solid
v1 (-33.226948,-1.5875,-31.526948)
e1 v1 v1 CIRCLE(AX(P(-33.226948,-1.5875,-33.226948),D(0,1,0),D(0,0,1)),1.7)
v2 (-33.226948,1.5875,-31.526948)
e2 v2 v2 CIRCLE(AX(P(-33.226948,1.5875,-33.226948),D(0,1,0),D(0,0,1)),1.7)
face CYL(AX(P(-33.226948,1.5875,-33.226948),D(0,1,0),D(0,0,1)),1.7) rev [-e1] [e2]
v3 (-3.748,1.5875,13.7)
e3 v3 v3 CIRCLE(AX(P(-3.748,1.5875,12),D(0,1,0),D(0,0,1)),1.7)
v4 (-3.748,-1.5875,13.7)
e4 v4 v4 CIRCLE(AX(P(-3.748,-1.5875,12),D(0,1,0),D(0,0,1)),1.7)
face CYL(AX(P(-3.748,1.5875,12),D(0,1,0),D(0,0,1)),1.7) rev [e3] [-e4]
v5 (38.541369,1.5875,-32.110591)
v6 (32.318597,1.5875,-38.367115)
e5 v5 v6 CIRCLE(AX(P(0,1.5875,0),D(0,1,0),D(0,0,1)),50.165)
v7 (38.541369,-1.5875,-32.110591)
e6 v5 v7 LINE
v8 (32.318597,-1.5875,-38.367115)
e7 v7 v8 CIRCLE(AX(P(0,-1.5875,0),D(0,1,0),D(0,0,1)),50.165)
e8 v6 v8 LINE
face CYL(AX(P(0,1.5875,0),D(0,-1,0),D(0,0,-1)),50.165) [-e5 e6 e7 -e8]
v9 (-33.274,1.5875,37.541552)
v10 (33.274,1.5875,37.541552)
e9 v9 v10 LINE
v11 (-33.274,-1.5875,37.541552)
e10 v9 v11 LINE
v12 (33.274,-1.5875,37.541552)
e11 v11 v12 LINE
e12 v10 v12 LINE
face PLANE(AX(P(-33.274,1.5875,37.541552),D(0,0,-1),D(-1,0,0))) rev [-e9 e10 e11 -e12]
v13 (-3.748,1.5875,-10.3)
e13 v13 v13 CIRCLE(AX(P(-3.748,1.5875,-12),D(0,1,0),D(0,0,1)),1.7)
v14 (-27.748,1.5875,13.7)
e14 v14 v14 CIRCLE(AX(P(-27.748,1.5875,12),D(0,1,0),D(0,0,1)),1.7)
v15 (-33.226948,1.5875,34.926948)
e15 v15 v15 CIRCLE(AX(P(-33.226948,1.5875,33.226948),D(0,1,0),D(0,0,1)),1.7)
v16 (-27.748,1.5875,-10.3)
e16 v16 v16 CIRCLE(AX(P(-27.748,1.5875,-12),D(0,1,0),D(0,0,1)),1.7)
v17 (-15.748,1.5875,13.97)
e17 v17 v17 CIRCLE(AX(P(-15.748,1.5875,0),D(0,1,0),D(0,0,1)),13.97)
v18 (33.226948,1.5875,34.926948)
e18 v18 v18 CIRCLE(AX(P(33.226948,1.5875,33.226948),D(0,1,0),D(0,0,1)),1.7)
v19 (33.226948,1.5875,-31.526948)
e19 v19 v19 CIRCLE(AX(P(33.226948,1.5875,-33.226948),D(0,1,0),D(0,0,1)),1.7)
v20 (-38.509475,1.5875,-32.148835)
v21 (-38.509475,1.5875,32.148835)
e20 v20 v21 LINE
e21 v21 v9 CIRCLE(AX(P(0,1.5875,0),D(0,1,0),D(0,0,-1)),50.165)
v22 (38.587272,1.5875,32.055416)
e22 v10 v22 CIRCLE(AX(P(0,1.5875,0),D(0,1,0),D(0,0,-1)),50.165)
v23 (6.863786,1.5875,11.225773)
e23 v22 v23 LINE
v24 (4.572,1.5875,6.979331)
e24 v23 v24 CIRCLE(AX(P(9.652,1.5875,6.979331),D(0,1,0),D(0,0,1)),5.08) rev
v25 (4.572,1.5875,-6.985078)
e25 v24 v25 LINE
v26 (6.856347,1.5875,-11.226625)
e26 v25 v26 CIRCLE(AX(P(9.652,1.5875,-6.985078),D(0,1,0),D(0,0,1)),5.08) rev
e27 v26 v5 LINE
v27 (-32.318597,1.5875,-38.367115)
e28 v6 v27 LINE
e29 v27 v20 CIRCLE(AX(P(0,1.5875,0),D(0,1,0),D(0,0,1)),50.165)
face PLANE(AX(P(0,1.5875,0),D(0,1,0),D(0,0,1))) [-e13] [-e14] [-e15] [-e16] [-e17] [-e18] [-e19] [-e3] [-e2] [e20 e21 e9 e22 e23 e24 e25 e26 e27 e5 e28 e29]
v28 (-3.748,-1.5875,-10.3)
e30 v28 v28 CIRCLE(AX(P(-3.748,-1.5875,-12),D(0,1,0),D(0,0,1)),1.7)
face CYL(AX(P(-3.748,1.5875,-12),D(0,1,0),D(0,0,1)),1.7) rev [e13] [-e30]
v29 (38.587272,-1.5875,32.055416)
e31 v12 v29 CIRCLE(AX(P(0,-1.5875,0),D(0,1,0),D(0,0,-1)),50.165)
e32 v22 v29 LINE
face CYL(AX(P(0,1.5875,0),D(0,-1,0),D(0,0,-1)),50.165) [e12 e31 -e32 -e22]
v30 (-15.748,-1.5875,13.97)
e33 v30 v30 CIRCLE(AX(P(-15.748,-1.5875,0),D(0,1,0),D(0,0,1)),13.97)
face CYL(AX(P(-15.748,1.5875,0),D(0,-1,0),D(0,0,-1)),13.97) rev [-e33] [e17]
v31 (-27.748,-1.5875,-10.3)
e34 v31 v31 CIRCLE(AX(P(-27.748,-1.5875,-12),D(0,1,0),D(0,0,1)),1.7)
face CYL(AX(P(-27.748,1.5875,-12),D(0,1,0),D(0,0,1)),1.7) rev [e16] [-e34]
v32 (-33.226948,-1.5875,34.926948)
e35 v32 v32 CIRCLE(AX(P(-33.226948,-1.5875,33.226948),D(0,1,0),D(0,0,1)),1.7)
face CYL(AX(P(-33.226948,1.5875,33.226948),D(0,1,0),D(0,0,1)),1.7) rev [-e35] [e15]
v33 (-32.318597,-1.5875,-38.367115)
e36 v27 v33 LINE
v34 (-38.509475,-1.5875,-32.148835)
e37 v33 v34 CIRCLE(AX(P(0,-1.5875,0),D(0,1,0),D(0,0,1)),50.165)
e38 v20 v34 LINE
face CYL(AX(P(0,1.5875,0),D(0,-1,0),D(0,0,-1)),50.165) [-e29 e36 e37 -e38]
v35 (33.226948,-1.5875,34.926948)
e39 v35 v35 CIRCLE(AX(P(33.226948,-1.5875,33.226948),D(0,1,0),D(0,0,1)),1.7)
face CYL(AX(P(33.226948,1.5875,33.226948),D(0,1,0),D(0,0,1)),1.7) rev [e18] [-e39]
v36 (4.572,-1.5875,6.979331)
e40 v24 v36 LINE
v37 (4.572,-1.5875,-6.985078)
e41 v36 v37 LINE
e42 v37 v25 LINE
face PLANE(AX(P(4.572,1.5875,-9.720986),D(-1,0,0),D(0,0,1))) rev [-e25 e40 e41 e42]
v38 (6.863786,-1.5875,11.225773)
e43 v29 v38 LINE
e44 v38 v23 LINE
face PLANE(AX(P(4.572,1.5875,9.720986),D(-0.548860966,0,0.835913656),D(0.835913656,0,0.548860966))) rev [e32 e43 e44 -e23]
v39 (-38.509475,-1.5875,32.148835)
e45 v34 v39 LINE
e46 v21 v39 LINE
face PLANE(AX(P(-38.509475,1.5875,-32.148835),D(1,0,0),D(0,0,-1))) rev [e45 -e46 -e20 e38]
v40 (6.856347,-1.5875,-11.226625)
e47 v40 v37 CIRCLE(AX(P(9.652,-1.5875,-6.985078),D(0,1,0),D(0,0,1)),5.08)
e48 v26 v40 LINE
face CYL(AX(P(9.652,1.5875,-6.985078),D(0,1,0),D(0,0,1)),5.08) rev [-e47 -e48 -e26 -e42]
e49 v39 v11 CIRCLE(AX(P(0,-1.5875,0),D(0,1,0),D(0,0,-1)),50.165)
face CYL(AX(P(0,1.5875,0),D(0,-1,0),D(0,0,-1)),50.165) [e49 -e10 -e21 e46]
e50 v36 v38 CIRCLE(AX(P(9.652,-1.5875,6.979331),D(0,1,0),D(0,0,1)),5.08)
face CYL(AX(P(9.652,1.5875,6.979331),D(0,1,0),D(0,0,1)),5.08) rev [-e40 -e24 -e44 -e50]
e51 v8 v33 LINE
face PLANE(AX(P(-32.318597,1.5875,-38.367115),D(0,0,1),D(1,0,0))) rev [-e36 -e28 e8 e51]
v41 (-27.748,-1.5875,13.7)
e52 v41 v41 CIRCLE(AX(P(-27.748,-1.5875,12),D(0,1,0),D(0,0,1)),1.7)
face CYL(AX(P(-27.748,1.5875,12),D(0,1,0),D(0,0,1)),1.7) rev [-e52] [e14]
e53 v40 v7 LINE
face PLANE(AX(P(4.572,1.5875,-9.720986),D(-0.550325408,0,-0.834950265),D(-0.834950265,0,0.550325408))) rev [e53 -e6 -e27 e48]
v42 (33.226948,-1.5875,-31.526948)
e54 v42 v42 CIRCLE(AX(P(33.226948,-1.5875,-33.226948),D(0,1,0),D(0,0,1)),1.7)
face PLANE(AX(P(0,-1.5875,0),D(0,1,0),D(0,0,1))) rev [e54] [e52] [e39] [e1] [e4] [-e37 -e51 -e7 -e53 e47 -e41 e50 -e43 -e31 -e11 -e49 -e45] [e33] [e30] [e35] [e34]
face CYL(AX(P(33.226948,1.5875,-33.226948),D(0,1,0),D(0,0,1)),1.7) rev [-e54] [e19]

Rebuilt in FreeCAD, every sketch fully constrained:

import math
import FreeCAD as App
import Part
import Sketcher

V = App.Vector
Q = App.Units.Quantity


def edges_at(feature, points):
    """Names of the edges that pass closest to the given points."""
    edges = feature.Shape.Edges
    near = lambda p: min(range(len(edges)), key=lambda i: edges[i].distToShape(Part.Vertex(*p))[0])
    return sorted({f"Edge{near(p) + 1}" for p in points})

doc = App.newDocument("Part")
body = doc.addObject("PartDesign::Body", "Body")

sketch1 = body.newObject("Sketcher::SketchObject", "Sketch")
sketch1.AttachmentSupport = (doc.getObject("XZ_Plane"), [""])
sketch1.MapMode = "FlatFace"
sketch1.addGeometry([
    Part.LineSegment(V(-38.509475, -32.148835, 0), V(-38.509475, 32.148835, 0)),
    Part.ArcOfCircle(Part.Circle(V(0, 0, 0), V(0, 0, 1), 50.165), math.radians(131.551359), math.radians(140.143885)),
    Part.LineSegment(V(-33.274, 37.541552, 0), V(33.274, 37.541552, 0)),
    Part.ArcOfCircle(Part.Circle(V(0, 0, 0), V(0, 0, 1), 50.165), math.radians(39.717264), math.radians(48.448641)),
    Part.LineSegment(V(38.587272, 32.055416, 0), V(4.572, 9.720986, 0)),
    Part.LineSegment(V(4.572, 9.720986, 0), V(4.572, -9.720986, 0)),
    Part.LineSegment(V(4.572, -9.720986, 0), V(38.541369, -32.110591, 0)),
    Part.ArcOfCircle(Part.Circle(V(0, 0, 0), V(0, 0, 1), 50.165), math.radians(-49.890838), math.radians(-39.799239)),
    Part.LineSegment(V(32.318597, -38.367115, 0), V(-32.318597, -38.367115, 0)),
    Part.ArcOfCircle(Part.Circle(V(0, 0, 0), V(0, 0, 1), 50.165), math.radians(-140.143885), math.radians(-130.109162)),
    Part.Circle(V(-15.748, 0, 0), V(0, 0, 1), 13.97),
], False)
sketch1.addConstraint([
    Sketcher.Constraint("Coincident", 0, 2, 1, 2),
    Sketcher.Constraint("Coincident", 1, 1, 2, 1),
    Sketcher.Constraint("Coincident", 2, 2, 3, 2),
    Sketcher.Constraint("Coincident", 3, 1, 4, 1),
    Sketcher.Constraint("Coincident", 4, 2, 5, 1),
    Sketcher.Constraint("Coincident", 5, 2, 6, 1),
    Sketcher.Constraint("Coincident", 6, 2, 7, 2),
    Sketcher.Constraint("Coincident", 7, 1, 8, 1),
    Sketcher.Constraint("Coincident", 8, 2, 9, 2),
    Sketcher.Constraint("Coincident", 9, 1, 0, 1),
    Sketcher.Constraint("Vertical", 0),
    Sketcher.Constraint("Horizontal", 2),
    Sketcher.Constraint("Vertical", 5),
    Sketcher.Constraint("Horizontal", 8),
    Sketcher.Constraint("Coincident", 1, 3, -1, 1),
    Sketcher.Constraint("Coincident", 3, 3, -1, 1),
    Sketcher.Constraint("Coincident", 7, 3, -1, 1),
    Sketcher.Constraint("Coincident", 9, 3, -1, 1),
    Sketcher.Constraint("Equal", 1, 3),
    Sketcher.Constraint("Equal", 3, 7),
    Sketcher.Constraint("Equal", 7, 9),
    Sketcher.Constraint("PointOnObject", 10, 3, -1),
    Sketcher.Constraint("Diameter", 10, Q("1.1 in")),
    Sketcher.Constraint("Radius", 1, Q("1.975 in")),
    Sketcher.Constraint("DistanceX", 2, 1, 2, 2, Q("2.62 in")),
    Sketcher.Constraint("DistanceX", 10, 3, 4, 2, Q("0.8 in")),
    Sketcher.Constraint("DistanceX", 10, 3, -1, 1, Q("0.62 in")),
    Sketcher.Constraint("DistanceY", 0, 1, 0, 2, Q("64.297669 mm")),
    Sketcher.Constraint("DistanceY", 5, 2, 5, 1, Q("19.441971 mm")),
    Sketcher.Constraint("DistanceX", 8, 2, 8, 1, Q("64.637195 mm")),
    Sketcher.Constraint("DistanceX", -1, 1, 3, 1, Q("38.587272 mm")),
    Sketcher.Constraint("DistanceX", -1, 1, 6, 2, Q("38.541369 mm")),
    Sketcher.Constraint("DistanceY", 7, 1, 5, 2, Q("28.646129 mm")),
])
pad1 = body.newObject("PartDesign::Pad", "Pad")
pad1.Profile = sketch1
pad1.Length = Q("0.125 in")
pad1.Midplane = True
doc.recompute()

fillet = body.newObject("PartDesign::Fillet", "Fillet")
fillet.Base = (pad1, edges_at(pad1, [(4.572, 0, -9.721), (4.572, 0, 9.721)]))
fillet.Radius = Q("0.2 in")

sketch2 = body.newObject("Sketcher::SketchObject", "Sketch001")
sketch2.AttachmentSupport = (doc.getObject("XZ_Plane"), [""])
sketch2.MapMode = "FlatFace"
sketch2.AttachmentOffset = App.Placement(V(0, 0, -0.0625 * 25.4), App.Rotation())
sketch2.addGeometry([
    Part.Circle(V(-33.226948, -33.226948, 0), V(0, 0, 1), 1.7),
    Part.Circle(V(33.226948, -33.226948, 0), V(0, 0, 1), 1.7),
    Part.Circle(V(33.226948, 33.226948, 0), V(0, 0, 1), 1.7),
    Part.Circle(V(-33.226948, 33.226948, 0), V(0, 0, 1), 1.7),
], False)
sketch2.addConstraint([
    Sketcher.Constraint("Equal", 0, 1),
    Sketcher.Constraint("Equal", 1, 2),
    Sketcher.Constraint("Equal", 2, 3),
    Sketcher.Constraint("Symmetric", 0, 3, 2, 3, -1, 1),
    Sketcher.Constraint("Symmetric", 1, 3, 3, 3, -1, 1),
    Sketcher.Constraint("Symmetric", 0, 3, 1, 3, -2),
    Sketcher.Constraint("Diameter", 0, Q("3.4 mm")),
    Sketcher.Constraint("DistanceX", 0, 3, -1, 1, Q("33.226948 mm")),
    Sketcher.Constraint("DistanceY", 0, 3, -1, 1, Q("33.226948 mm")),
])
doc.recompute()
hole = body.newObject("PartDesign::Hole", "Hole")
hole.Profile = sketch2
hole.ThreadType = "None"
hole.Diameter = 3.4
hole.DepthType = "ThroughAll"
hole.Reversed = True

sketch3 = body.newObject("Sketcher::SketchObject", "Sketch002")
sketch3.AttachmentSupport = (doc.getObject("XZ_Plane"), [""])
sketch3.MapMode = "FlatFace"
sketch3.AttachmentOffset = App.Placement(V(0, 0, -0.0625 * 25.4), App.Rotation())
sketch3.addGeometry([
    Part.Circle(V(-27.748, -12, 0), V(0, 0, 1), 1.7),
    Part.Circle(V(-3.748, -12, 0), V(0, 0, 1), 1.7),
    Part.Circle(V(-3.748, 12, 0), V(0, 0, 1), 1.7),
    Part.Circle(V(-27.748, 12, 0), V(0, 0, 1), 1.7),
], False)
sketch3.addConstraint([
    Sketcher.Constraint("Equal", 0, 1),
    Sketcher.Constraint("Equal", 1, 2),
    Sketcher.Constraint("Equal", 2, 3),
    Sketcher.Constraint("Symmetric", 1, 3, 2, 3, -1),
    Sketcher.Constraint("Symmetric", 0, 3, 3, 3, -1),
    Sketcher.Constraint("Horizontal", 0, 3, 1, 3),
    Sketcher.Constraint("Diameter", 0, Q("3.4 mm")),
    Sketcher.Constraint("DistanceX", 0, 3, -1, 1, Q("27.748 mm")),
    Sketcher.Constraint("DistanceY", 0, 3, -1, 1, Q("12 mm")),
    Sketcher.Constraint("DistanceX", 1, 3, -1, 1, Q("3.748 mm")),
])
doc.recompute()
hole2 = body.newObject("PartDesign::Hole", "Hole001")
hole2.Profile = sketch3
hole2.ThreadType = "None"
hole2.Diameter = 3.4
hole2.DepthType = "ThroughAll"
hole2.Reversed = True

doc.recompute()
